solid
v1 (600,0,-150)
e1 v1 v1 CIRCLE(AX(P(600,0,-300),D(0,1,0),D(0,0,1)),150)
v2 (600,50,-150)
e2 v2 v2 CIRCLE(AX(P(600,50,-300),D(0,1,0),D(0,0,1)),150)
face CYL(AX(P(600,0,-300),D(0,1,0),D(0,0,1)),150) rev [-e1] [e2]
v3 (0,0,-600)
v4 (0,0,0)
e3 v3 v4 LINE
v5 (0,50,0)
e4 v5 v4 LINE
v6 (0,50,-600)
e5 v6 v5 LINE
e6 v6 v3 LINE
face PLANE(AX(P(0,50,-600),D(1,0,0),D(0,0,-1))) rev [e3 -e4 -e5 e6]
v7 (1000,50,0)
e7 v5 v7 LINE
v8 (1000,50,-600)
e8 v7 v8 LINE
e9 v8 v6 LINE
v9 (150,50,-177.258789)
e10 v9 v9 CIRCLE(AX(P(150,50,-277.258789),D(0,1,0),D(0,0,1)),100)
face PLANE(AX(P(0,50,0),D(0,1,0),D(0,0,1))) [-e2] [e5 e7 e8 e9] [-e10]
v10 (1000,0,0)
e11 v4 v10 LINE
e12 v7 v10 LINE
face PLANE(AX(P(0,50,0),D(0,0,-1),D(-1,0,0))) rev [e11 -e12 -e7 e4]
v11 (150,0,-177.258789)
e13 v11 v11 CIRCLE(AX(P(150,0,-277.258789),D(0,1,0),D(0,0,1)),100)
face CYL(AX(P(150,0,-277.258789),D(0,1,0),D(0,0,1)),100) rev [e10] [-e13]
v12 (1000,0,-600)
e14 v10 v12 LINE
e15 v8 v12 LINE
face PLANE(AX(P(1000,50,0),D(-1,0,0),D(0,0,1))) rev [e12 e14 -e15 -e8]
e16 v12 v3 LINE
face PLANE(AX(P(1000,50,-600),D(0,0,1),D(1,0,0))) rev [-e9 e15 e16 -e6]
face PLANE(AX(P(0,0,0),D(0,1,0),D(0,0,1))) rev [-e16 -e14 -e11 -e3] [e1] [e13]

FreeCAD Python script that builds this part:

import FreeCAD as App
import Part
import Sketcher


def add_polygon(sketch, points):
    """Adds a closed chain of lines whose ends are joined by coincident constraints."""
    first, n = sketch.GeometryCount, len(points)
    for a, b in zip(points, points[1:] + points[:1]):
        sketch.addGeometry(Part.LineSegment(App.Vector(*a, 0), App.Vector(*b, 0)), False)
    for i in range(n):
        sketch.addConstraint(Sketcher.Constraint("Coincident", first + i, 2, first + (i + 1) % n, 1))

doc = App.newDocument("Part")
params = doc.addObject("Spreadsheet::Sheet", "Params")
for row, (alias, value) in enumerate([
    ("sketch1_width", "1000 mm"),
    ("sketch1_height", "600 mm"),
    ("pad1_length", "50 mm"),
    ("sketch2_diameter", "200 mm"),
    ("sketch2_diameter2", "300 mm"),
], start=1):
    params.set(f"A{row}", alias)
    params.set(f"B{row}", "=" + value)
    params.setAlias(f"B{row}", alias)

body = doc.addObject("PartDesign::Body", "Body")

# Sketch on XZ plane
sketch1 = body.newObject("Sketcher::SketchObject", "Sketch")
sketch1.AttachmentSupport = (doc.getObject("XZ_Plane"), [""])
sketch1.MapMode = "FlatFace"
add_polygon(sketch1, [(0, -600), (0, 0), (1000, 0), (1000, -600)])  # lines 0-3
sketch1.addConstraint(Sketcher.Constraint("Vertical", 0))
sketch1.addConstraint(Sketcher.Constraint("Horizontal", 1))
sketch1.addConstraint(Sketcher.Constraint("Vertical", 2))
sketch1.addConstraint(Sketcher.Constraint("Horizontal", 3))
sketch1.addConstraint(Sketcher.Constraint("Coincident", 0, 2, -1, 1))
sketch1.addConstraint(Sketcher.Constraint("DistanceX", 1, 1, 1, 2, 1000.0))
sketch1.addConstraint(Sketcher.Constraint("DistanceY", 0, 1, 0, 2, 600.0))
sketch1.setExpression("Constraints[9]", "Params.sketch1_width")
sketch1.setExpression("Constraints[10]", "Params.sketch1_height")
pad1 = body.newObject("PartDesign::Pad", "Pad")
pad1.Profile = sketch1
pad1.setExpression("Length", "Params.pad1_length")
pad1.Reversed = True

# Sketch on XZ plane
sketch2 = body.newObject("Sketcher::SketchObject", "Sketch001")
sketch2.AttachmentSupport = (doc.getObject("XZ_Plane"), [""])
sketch2.MapMode = "FlatFace"
sketch2.AttachmentOffset = App.Placement(App.Vector(0, 0, -50), App.Rotation())
sketch2.addGeometry(Part.Circle(App.Vector(150, -277.258789, 0), App.Vector(0, 0, 1), 100), False)
sketch2.addGeometry(Part.Circle(App.Vector(600, -300, 0), App.Vector(0, 0, 1), 150), False)
sketch2.addConstraint(Sketcher.Constraint("Diameter", 0, 200.0))
sketch2.addConstraint(Sketcher.Constraint("Diameter", 1, 300.0))
sketch2.addConstraint(Sketcher.Constraint("DistanceX", -1, 1, 0, 3, 150.0))
sketch2.addConstraint(Sketcher.Constraint("DistanceX", -1, 1, 1, 3, 600.0))
sketch2.addConstraint(Sketcher.Constraint("DistanceY", 1, 3, -1, 1, 300.0))
sketch2.addConstraint(Sketcher.Constraint("DistanceY", 0, 3, -1, 1, 277.258789))
sketch2.setExpression("Constraints[0]", "Params.sketch2_diameter")
sketch2.setExpression("Constraints[1]", "Params.sketch2_diameter2")
pocket1 = body.newObject("PartDesign::Pocket", "Pocket")
pocket1.Profile = sketch2
pocket1.Type = "ThroughAll"
pocket1.Reversed = True

doc.recompute()
